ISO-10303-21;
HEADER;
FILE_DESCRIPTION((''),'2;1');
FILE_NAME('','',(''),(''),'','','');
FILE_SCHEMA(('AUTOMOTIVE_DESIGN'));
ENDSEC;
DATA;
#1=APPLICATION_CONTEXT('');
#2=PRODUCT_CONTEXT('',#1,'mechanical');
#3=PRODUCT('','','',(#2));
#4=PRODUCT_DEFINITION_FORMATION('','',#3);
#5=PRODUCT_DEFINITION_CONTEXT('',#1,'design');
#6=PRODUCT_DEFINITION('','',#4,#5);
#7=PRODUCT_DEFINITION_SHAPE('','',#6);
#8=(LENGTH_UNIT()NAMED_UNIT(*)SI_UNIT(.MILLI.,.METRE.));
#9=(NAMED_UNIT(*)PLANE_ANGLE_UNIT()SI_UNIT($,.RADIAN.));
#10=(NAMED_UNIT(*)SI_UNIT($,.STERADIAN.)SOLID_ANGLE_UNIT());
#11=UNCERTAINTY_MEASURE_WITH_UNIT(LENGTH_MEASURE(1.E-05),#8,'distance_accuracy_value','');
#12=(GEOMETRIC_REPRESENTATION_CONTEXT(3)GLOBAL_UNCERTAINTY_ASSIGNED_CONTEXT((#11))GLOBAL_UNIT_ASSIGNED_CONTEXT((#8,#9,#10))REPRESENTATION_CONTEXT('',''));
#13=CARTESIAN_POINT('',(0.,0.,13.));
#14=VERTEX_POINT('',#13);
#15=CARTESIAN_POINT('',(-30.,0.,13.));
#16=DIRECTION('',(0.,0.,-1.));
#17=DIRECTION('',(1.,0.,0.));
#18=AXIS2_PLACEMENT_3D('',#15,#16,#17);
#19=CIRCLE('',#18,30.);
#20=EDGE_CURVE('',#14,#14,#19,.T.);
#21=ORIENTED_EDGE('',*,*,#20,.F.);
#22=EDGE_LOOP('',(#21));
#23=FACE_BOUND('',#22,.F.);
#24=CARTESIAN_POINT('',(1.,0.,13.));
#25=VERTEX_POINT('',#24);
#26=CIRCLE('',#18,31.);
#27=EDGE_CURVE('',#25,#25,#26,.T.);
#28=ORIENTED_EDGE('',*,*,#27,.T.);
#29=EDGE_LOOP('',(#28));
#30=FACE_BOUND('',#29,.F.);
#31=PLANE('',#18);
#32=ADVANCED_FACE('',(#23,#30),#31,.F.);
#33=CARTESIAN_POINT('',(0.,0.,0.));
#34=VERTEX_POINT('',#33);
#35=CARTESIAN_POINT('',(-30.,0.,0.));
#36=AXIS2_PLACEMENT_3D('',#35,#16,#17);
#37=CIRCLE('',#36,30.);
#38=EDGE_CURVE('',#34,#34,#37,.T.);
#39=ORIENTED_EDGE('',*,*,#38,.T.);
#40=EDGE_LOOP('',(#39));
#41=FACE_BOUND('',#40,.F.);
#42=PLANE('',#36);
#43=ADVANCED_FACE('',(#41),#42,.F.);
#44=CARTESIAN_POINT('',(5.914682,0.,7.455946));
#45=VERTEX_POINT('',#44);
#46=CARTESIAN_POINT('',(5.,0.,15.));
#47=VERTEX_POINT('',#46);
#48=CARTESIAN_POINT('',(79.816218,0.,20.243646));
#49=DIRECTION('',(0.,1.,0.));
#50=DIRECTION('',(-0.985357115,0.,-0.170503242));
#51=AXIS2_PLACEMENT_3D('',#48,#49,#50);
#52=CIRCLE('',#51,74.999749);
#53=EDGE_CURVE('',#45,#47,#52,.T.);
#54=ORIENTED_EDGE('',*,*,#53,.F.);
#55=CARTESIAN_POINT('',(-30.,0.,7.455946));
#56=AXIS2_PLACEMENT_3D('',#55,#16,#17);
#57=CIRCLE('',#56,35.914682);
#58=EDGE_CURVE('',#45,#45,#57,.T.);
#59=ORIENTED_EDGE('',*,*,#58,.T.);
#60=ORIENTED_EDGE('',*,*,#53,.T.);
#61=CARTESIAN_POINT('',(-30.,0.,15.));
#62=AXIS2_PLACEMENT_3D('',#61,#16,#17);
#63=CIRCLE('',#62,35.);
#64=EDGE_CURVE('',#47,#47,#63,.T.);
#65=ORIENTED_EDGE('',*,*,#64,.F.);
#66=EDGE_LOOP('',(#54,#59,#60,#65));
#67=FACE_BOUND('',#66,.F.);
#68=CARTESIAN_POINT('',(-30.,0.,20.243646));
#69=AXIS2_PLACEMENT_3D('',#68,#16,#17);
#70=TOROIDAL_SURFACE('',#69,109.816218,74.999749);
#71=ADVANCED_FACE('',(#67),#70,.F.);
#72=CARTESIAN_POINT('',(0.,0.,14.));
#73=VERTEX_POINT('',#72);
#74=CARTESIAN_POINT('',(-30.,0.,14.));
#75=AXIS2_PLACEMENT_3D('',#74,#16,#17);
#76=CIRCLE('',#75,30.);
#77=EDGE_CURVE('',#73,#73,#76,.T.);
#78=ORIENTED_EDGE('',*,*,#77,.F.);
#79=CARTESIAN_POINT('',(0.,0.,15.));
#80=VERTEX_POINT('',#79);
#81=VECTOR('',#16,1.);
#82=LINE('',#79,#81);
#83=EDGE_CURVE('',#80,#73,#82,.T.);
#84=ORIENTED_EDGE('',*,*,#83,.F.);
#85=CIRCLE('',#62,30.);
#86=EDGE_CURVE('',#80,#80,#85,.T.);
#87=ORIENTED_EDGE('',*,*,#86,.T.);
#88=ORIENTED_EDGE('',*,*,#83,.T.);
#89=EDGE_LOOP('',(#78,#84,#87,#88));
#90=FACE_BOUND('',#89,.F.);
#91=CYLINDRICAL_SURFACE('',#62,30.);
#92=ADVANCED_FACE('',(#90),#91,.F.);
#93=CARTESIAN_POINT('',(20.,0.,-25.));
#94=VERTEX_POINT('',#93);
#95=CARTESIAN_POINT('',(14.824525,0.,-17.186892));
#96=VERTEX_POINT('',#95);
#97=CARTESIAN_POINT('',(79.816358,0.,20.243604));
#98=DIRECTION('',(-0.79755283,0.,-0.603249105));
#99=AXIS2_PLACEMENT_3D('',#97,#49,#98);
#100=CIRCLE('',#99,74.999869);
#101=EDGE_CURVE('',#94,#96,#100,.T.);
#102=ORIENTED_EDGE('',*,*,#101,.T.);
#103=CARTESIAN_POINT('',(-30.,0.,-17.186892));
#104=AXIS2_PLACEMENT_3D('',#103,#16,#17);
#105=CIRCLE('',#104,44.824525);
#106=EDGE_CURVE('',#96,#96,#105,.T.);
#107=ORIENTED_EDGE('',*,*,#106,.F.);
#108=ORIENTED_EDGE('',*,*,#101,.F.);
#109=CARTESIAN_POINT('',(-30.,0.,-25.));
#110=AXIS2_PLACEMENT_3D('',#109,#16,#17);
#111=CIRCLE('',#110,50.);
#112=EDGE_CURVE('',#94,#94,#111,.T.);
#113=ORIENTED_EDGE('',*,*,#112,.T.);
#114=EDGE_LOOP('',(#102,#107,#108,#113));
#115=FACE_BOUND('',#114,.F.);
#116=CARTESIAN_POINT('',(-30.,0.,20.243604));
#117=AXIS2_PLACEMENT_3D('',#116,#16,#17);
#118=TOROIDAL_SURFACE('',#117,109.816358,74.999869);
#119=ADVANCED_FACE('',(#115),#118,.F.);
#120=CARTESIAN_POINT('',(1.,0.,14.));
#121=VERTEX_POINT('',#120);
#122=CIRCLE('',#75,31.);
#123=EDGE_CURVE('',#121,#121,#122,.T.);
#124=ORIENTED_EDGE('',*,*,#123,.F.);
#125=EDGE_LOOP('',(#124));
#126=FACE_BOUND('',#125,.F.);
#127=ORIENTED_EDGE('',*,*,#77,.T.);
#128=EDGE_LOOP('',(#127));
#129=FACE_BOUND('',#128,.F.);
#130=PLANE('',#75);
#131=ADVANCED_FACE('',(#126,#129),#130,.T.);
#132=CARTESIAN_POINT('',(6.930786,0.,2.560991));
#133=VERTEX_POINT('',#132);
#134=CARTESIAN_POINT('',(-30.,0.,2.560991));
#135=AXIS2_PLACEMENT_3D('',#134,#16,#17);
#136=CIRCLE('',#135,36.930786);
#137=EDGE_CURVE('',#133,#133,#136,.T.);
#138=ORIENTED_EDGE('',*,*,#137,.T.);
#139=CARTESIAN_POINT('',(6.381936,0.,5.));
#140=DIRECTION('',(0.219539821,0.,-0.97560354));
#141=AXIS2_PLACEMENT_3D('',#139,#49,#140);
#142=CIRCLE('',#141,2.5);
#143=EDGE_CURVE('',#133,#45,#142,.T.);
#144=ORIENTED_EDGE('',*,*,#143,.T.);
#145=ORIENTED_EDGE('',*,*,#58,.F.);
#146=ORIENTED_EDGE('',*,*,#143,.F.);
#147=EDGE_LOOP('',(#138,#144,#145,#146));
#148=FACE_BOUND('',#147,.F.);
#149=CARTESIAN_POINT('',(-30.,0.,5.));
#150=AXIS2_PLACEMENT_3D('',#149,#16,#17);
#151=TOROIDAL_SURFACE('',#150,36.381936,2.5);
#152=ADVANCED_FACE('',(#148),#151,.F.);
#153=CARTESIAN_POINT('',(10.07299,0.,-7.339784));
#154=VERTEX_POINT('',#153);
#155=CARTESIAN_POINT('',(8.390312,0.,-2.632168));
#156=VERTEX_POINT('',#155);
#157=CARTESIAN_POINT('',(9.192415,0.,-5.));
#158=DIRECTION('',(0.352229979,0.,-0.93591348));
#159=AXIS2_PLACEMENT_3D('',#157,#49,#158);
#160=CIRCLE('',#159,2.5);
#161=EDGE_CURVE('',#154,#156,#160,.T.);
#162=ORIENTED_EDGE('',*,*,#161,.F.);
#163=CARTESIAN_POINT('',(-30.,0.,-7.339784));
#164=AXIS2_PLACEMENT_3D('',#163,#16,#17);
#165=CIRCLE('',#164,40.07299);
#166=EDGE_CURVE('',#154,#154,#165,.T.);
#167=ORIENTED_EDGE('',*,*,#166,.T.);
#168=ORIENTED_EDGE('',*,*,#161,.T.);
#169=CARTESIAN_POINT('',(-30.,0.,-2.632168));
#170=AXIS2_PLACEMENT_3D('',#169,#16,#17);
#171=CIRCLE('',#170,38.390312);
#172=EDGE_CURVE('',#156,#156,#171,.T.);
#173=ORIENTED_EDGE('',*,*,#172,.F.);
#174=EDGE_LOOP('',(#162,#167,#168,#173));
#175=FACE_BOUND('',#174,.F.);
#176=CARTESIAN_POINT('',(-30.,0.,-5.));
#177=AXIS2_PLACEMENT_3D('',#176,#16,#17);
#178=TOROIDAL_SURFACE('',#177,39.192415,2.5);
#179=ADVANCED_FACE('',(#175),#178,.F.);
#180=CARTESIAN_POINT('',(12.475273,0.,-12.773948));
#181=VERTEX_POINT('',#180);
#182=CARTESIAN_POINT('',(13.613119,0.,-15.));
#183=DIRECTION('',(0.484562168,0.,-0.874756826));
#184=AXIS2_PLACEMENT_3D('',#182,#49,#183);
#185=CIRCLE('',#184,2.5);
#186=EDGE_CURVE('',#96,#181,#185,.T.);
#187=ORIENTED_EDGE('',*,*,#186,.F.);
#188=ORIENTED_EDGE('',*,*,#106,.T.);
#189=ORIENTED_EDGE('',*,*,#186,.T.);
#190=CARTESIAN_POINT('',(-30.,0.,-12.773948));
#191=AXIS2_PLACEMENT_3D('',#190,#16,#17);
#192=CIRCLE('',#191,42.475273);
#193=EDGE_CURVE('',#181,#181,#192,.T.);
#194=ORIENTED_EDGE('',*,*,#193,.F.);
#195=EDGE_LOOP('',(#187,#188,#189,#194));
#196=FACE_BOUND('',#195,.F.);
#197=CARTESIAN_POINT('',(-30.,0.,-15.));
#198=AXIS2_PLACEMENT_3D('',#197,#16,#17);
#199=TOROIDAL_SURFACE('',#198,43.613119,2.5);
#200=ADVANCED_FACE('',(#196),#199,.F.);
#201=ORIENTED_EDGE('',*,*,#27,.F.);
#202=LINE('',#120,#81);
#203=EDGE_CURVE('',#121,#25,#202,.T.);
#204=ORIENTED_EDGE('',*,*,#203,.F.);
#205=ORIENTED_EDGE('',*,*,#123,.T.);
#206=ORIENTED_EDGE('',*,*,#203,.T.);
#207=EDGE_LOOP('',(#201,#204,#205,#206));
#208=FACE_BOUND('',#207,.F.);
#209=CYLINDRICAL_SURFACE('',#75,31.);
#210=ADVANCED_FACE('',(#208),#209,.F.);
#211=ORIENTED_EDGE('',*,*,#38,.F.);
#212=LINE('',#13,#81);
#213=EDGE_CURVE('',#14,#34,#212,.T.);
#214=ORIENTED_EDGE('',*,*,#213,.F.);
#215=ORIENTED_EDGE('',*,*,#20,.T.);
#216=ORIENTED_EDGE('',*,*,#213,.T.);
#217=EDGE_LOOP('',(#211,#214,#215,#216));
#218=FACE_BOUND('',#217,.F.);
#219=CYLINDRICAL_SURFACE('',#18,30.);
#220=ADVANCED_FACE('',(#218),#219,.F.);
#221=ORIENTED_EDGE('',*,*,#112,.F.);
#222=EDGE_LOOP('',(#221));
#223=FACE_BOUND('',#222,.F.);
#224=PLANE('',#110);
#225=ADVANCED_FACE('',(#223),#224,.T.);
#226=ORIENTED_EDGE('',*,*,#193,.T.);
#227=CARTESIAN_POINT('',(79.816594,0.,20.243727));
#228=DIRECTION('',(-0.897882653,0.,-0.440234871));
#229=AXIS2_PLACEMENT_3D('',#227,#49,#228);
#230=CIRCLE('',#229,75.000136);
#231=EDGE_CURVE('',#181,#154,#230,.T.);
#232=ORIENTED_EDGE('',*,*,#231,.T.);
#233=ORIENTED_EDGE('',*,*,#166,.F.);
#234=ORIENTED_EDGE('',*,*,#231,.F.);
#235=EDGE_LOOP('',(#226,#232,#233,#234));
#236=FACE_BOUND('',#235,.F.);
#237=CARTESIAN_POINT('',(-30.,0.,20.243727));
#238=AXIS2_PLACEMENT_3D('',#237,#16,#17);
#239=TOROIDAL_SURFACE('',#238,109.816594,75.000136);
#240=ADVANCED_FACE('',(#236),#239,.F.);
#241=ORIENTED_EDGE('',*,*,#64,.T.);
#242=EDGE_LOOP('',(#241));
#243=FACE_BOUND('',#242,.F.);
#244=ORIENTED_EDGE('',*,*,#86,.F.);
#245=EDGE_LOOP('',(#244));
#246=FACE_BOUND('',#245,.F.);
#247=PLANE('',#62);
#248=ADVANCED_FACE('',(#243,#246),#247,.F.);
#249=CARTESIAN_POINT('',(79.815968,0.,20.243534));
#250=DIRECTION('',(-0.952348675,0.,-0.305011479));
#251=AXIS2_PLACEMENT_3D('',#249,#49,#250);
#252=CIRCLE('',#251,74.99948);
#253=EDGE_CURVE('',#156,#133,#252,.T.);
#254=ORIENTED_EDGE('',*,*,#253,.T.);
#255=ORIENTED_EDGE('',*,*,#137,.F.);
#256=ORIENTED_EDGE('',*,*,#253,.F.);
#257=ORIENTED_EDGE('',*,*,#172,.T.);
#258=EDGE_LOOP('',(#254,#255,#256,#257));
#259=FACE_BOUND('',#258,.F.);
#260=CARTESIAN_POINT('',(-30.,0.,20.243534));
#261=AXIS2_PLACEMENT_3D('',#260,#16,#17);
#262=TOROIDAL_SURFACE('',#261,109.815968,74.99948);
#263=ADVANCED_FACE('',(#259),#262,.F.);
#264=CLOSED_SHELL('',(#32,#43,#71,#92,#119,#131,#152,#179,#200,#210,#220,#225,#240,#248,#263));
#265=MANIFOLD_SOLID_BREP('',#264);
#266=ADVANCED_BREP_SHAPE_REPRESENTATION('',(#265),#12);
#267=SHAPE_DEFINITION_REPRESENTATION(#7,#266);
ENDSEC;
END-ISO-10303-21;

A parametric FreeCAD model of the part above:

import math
import FreeCAD as App
import Part
import Sketcher
from FreeCAD import Vector

doc = App.newDocument("Part")
body = doc.addObject("PartDesign::Body", "Body")

sketch1 = body.newObject("Sketcher::SketchObject", "Sketch")
sketch1.AttachmentSupport = (doc.getObject("XZ_Plane"), [""])
sketch1.MapMode = "FlatFace"
sketch1.addGeometry([
    Part.LineSegment(Vector(0, 13, 0), Vector(0, 0, 0)),
    Part.LineSegment(Vector(0, 0, 0), Vector(-30, 0, 0)),
    Part.LineSegment(Vector(-30, 0, 0), Vector(-30, -25, 0)),
    Part.LineSegment(Vector(-30, -25, 0), Vector(20, -25, 0)),
    Part.ArcOfCircle(Part.Circle(Vector(79.8, 20.2, 0), Vector(0, 0, 1), 75), math.radians(-150.06), math.radians(-142.9)),
    Part.ArcOfCircle(Part.Circle(Vector(13.6, -15, 0), Vector(0, 0, 1), 2.5), math.radians(117), math.radians(299)),
    Part.ArcOfCircle(Part.Circle(Vector(79.8, 20.2, 0), Vector(0, 0, 1), 75), math.radians(-158.42), math.radians(-153.88)),
    Part.ArcOfCircle(Part.Circle(Vector(9.2, -5, 0), Vector(0, 0, 1), 2.5), math.radians(109), math.radians(291)),
    Part.ArcOfCircle(Part.Circle(Vector(79.8, 20.2, 0), Vector(0, 0, 1), 75), math.radians(-166.36), math.radians(-162.24)),
    Part.ArcOfCircle(Part.Circle(Vector(6.4, 5, 0), Vector(0, 0, 1), 2.5), math.radians(101), math.radians(283)),
    Part.ArcOfCircle(Part.Circle(Vector(79.8, 20.2, 0), Vector(0, 0, 1), 75), math.radians(-175.99), math.radians(-170.18)),
    Part.LineSegment(Vector(5, 15, 0), Vector(0, 15, 0)),
    Part.LineSegment(Vector(0, 15, 0), Vector(0, 14, 0)),
    Part.LineSegment(Vector(0, 14, 0), Vector(1, 14, 0)),
    Part.LineSegment(Vector(1, 14, 0), Vector(1, 13, 0)),
    Part.LineSegment(Vector(1, 13, 0), Vector(0, 13, 0)),
], False)
sketch1.addGeometry(Part.LineSegment(Vector(-30, 20.2, 0), Vector(-30, -25, 0)), True)
sketch1.addConstraint([
    Sketcher.Constraint("Coincident", 0, 2, 1, 1),
    Sketcher.Constraint("Coincident", 1, 2, 2, 1),
    Sketcher.Constraint("Coincident", 2, 2, 3, 1),
    Sketcher.Constraint("Coincident", 3, 2, 4, 2),
    Sketcher.Constraint("Coincident", 4, 1, 5, 2),
    Sketcher.Constraint("Coincident", 5, 1, 6, 2),
    Sketcher.Constraint("Coincident", 6, 1, 7, 2),
    Sketcher.Constraint("Coincident", 7, 1, 8, 2),
    Sketcher.Constraint("Coincident", 8, 1, 9, 2),
    Sketcher.Constraint("Coincident", 9, 1, 10, 2),
    Sketcher.Constraint("Coincident", 10, 1, 11, 1),
    Sketcher.Constraint("Coincident", 11, 2, 12, 1),
    Sketcher.Constraint("Coincident", 12, 2, 13, 1),
    Sketcher.Constraint("Coincident", 13, 2, 14, 1),
    Sketcher.Constraint("Coincident", 14, 2, 15, 1),
    Sketcher.Constraint("Coincident", 15, 2, 0, 1),
    Sketcher.Constraint("Vertical", 0),
    Sketcher.Constraint("Horizontal", 1),
    Sketcher.Constraint("Vertical", 2),
    Sketcher.Constraint("Horizontal", 3),
    Sketcher.Constraint("Horizontal", 11),
    Sketcher.Constraint("Vertical", 12),
    Sketcher.Constraint("Horizontal", 13),
    Sketcher.Constraint("Vertical", 14),
    Sketcher.Constraint("Horizontal", 15),
    Sketcher.Constraint("Vertical", 16),
    Sketcher.Constraint("Coincident", 0, 2, -1, 1),
    Sketcher.Constraint("Coincident", 16, 2, 2, 2),
    Sketcher.Constraint("Equal", 5, 7),
    Sketcher.Constraint("Equal", 7, 9),
    Sketcher.Constraint("PointOnObject", 11, 2, -2),
    Sketcher.Constraint("Horizontal", 6, 3, 16, 1),
    Sketcher.Constraint("Equal", 15, 12),
    Sketcher.Constraint("Equal", 12, 14),
    Sketcher.Constraint("Radius", 5, 2.5),
    Sketcher.Constraint("DistanceX", 1, 2, 1, 1, 30.0),
    Sketcher.Constraint("DistanceX", 3, 1, 3, 2, 50.0),
    Sketcher.Constraint("DistanceX", 11, 2, 11, 1, 5.0),
    Sketcher.Constraint("DistanceX", 13, 1, 13, 2, 1.0),
    Sketcher.Constraint("DistanceY", 0, 2, 0, 1, 13.0),
    Sketcher.Constraint("DistanceY", 2, 2, 2, 1, 25.0),
    Sketcher.Constraint("DistanceY", 5, 3, -1, 1, 15.0),
    Sketcher.Constraint("DistanceY", 7, 3, -1, 1, 5.0),
    Sketcher.Constraint("DistanceY", -1, 1, 9, 3, 5.0),
    Sketcher.Constraint("Radius", 4, 74.999869),
    Sketcher.Constraint("Radius", 8, 74.99948),
    Sketcher.Constraint("Radius", 10, 74.999749),
    Sketcher.Constraint("Radius", 6, 75.000136),
    Sketcher.Constraint("DistanceY", 16, 2, 16, 1, 45.243727),
    Sketcher.Constraint("DistanceX", -1, 1, 5, 3, 13.613119),
    Sketcher.Constraint("DistanceX", -1, 1, 10, 3, 79.816218),
    Sketcher.Constraint("DistanceY", 5, 1, -1, 1, 12.773948),
    Sketcher.Constraint("DistanceX", -1, 1, 6, 1, 10.07299),
    Sketcher.Constraint("DistanceX", -1, 1, 7, 1, 8.390312),
    Sketcher.Constraint("DistanceY", -1, 1, 8, 1, 2.560991),
    Sketcher.Constraint("DistanceX", 5, 3, 4, 3, 66.203238),
    Sketcher.Constraint("DistanceX", 8, 3, 4, 3, 0.00039),
])
revolution = body.newObject("PartDesign::Revolution", "Revolution")
revolution.Profile = sketch1
revolution.ReferenceAxis = (sketch1, ["Axis0"])
revolution.Angle = 360

doc.recompute()
